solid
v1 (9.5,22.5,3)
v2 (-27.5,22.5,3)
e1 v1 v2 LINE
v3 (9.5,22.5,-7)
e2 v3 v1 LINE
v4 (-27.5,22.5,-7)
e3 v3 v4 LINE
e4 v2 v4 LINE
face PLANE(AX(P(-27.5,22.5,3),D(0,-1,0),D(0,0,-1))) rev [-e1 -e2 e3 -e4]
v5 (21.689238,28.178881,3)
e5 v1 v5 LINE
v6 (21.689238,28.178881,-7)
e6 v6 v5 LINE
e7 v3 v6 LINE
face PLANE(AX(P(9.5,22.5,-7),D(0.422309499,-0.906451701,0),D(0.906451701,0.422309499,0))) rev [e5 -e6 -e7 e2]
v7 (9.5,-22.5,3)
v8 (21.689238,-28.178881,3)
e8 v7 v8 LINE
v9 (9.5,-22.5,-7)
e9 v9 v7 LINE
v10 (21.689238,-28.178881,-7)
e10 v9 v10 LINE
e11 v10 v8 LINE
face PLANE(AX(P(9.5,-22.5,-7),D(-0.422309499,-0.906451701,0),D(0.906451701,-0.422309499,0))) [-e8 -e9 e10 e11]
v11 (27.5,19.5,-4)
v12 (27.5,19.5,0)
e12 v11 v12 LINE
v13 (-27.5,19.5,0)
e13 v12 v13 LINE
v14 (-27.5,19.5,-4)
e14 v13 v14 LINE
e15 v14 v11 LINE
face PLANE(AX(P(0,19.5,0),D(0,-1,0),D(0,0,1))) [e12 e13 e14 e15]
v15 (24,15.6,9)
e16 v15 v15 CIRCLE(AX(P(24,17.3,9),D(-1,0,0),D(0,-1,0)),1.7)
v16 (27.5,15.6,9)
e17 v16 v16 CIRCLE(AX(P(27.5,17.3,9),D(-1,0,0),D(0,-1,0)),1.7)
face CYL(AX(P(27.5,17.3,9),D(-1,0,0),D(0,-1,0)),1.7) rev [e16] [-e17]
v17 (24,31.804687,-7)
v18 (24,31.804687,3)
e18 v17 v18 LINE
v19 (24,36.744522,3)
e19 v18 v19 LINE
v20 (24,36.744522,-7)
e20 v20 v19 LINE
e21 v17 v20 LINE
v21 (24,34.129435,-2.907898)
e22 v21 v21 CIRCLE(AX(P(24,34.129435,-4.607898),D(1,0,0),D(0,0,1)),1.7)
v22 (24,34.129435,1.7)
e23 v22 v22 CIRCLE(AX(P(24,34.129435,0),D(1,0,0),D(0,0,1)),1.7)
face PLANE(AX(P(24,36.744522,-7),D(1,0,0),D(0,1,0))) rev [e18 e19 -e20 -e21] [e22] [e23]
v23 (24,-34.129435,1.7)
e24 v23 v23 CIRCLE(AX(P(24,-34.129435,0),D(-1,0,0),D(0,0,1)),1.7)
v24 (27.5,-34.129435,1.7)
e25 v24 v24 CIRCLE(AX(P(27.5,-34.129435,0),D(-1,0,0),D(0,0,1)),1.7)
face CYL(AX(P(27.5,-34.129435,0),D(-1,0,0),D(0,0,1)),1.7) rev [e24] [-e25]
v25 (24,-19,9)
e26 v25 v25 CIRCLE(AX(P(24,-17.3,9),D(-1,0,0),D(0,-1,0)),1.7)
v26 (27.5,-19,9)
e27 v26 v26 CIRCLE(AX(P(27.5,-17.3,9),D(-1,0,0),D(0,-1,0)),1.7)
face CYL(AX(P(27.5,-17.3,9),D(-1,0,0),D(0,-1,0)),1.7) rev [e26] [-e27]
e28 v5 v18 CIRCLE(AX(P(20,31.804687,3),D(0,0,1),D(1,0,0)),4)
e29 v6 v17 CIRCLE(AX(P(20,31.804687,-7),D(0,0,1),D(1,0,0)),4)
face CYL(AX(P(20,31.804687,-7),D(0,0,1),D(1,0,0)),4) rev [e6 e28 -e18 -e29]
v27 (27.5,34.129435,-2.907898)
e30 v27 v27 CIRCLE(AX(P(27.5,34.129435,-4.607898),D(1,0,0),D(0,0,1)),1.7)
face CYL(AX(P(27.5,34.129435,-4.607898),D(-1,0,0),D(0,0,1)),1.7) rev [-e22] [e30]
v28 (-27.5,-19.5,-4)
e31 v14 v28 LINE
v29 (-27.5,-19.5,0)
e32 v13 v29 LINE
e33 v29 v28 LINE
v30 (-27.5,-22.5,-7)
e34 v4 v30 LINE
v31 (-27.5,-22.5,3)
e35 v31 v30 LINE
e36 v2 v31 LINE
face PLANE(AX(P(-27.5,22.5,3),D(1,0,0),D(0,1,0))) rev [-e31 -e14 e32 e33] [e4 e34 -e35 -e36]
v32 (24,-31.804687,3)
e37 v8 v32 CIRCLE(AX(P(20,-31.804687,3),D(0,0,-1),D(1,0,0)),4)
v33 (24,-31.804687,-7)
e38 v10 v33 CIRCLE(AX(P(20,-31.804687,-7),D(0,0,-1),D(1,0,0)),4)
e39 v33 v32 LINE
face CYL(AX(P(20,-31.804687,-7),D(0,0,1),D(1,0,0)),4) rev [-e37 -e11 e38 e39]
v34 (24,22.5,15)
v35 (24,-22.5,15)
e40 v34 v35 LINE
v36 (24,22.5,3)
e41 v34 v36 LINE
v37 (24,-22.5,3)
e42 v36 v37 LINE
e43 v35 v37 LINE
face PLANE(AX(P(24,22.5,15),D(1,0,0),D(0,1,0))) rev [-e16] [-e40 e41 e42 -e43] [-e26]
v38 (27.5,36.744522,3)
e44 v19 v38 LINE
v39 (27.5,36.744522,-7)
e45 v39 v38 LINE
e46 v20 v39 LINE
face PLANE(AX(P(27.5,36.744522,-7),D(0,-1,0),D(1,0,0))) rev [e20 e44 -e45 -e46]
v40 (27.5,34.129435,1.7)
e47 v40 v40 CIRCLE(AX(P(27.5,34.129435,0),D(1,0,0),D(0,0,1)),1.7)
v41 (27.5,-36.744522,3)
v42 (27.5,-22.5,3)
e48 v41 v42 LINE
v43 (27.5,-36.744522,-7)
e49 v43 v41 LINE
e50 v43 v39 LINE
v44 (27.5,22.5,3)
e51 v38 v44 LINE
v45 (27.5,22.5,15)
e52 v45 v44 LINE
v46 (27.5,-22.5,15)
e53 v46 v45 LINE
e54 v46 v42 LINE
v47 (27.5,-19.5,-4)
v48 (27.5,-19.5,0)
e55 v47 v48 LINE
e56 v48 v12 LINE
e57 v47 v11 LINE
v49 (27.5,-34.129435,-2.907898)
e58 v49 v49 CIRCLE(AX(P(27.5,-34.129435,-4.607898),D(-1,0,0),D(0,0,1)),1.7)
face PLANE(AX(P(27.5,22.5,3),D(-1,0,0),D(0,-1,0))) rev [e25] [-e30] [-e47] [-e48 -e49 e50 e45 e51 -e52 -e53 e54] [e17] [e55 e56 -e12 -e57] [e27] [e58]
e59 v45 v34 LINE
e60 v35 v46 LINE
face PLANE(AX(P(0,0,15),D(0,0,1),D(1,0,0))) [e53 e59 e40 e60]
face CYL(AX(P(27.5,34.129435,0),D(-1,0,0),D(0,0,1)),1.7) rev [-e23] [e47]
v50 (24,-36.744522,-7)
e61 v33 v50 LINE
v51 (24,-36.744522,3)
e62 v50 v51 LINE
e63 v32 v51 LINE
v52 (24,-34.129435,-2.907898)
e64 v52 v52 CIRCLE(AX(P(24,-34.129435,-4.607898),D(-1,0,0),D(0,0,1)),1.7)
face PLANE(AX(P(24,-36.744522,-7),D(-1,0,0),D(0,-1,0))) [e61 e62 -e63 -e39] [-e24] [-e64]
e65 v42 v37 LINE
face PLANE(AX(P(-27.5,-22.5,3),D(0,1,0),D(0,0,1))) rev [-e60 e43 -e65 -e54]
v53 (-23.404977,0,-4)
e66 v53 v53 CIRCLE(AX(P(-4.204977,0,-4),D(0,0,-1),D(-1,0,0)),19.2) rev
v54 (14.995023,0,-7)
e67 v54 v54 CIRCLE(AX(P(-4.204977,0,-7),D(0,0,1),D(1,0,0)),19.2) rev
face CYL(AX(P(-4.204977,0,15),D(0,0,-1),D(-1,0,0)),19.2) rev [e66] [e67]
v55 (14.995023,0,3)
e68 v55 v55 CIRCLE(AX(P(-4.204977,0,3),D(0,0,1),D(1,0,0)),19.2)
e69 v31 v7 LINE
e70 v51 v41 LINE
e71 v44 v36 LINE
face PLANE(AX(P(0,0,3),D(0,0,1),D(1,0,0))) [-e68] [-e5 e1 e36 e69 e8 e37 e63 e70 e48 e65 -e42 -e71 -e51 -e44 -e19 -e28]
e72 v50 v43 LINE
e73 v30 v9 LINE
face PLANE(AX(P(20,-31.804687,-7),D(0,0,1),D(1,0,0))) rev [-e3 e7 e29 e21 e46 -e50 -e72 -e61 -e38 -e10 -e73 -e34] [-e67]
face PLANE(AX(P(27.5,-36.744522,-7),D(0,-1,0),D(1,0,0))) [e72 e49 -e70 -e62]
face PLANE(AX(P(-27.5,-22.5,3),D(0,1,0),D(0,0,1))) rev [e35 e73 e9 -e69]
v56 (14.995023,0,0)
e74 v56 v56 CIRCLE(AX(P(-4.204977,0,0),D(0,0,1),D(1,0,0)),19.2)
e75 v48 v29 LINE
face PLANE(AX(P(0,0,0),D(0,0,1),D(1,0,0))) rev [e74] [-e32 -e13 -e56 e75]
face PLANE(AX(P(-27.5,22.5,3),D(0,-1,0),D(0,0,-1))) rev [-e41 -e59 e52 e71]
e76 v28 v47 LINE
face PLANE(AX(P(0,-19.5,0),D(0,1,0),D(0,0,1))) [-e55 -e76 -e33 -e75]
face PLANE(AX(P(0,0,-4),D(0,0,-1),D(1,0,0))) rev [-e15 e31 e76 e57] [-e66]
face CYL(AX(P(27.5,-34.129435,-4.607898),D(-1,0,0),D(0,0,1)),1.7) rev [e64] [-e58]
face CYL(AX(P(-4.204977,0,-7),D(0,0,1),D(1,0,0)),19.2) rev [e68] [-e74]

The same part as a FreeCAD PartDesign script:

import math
import FreeCAD as App
import Part
import Sketcher
from FreeCAD import Vector
Q = App.Units.Quantity

doc = App.newDocument("Part")
params = doc.addObject("Spreadsheet::Sheet", "Params")
for row, (alias, value) in enumerate([
    ("sketch1_width", "55 mm"),
    ("sketch1_height", "45 mm"),
    ("pad1_length", "3 mm"),
    ("sketch2_height", "45 mm"),
    ("sketch2_width", "3.5 mm"),
    ("pad2_length", "12 mm"),
    ("sketch3_diameter", "3.4 mm"),
    ("sketch4_radius", "4 mm"),
    ("sketch4_width", "18 mm"),
    ("sketch4_width2", "3.5 mm"),
    ("pad3_length", "10 mm"),
    ("sketch5_diameter", "3.4 mm"),
    ("sketch6_diameter", "38.4 mm"),
    ("pocket3_length", "96.876971 mm"),
    ("sketch7_width", "55 mm"),
    ("sketch7_height", "4 mm"),
    ("pad4_length", "3 mm"),
], start=1):
    params.set(f"A{row}", alias)
    params.set(f"B{row}", "=" + value)
    params.setAlias(f"B{row}", alias)

body = doc.addObject("PartDesign::Body", "Body")

# Sketch on XY plane
sketch1 = body.newObject("Sketcher::SketchObject", "Sketch")
sketch1.AttachmentSupport = (doc.getObject("XY_Plane"), [""])
sketch1.MapMode = "FlatFace"
sketch1.addGeometry(Part.LineSegment(Vector(-28, 22, 0), Vector(-28, -22, 0)), False)
sketch1.addGeometry(Part.LineSegment(Vector(-28, -22, 0), Vector(28, -22, 0)), False)
sketch1.addGeometry(Part.LineSegment(Vector(28, -22, 0), Vector(28, 22, 0)), False)
sketch1.addGeometry(Part.LineSegment(Vector(28, 22, 0), Vector(-28, 22, 0)), False)
sketch1.addConstraint(Sketcher.Constraint("Coincident", 0, 2, 1, 1))
sketch1.addConstraint(Sketcher.Constraint("Coincident", 1, 2, 2, 1))
sketch1.addConstraint(Sketcher.Constraint("Coincident", 2, 2, 3, 1))
sketch1.addConstraint(Sketcher.Constraint("Coincident", 3, 2, 0, 1))
sketch1.addConstraint(Sketcher.Constraint("Vertical", 0))
sketch1.addConstraint(Sketcher.Constraint("Horizontal", 1))
sketch1.addConstraint(Sketcher.Constraint("Vertical", 2))
sketch1.addConstraint(Sketcher.Constraint("Horizontal", 3))
sketch1.addConstraint(Sketcher.Constraint("Symmetric", 0, 2, 2, 2, -1, 1))
sketch1.addConstraint(Sketcher.Constraint("DistanceX", 1, 1, 1, 2, Q("55 mm")))
sketch1.addConstraint(Sketcher.Constraint("DistanceY", 0, 2, 0, 1, Q("45 mm")))
sketch1.setExpression("Constraints[9]", "Params.sketch1_width")
sketch1.setExpression("Constraints[10]", "Params.sketch1_height")
pad1 = body.newObject("PartDesign::Pad", "Pad")
pad1.Profile = sketch1
pad1.setExpression("Length", "Params.pad1_length")

# Sketch on XY plane
sketch2 = body.newObject("Sketcher::SketchObject", "Sketch001")
sketch2.AttachmentSupport = (doc.getObject("XY_Plane"), [""])
sketch2.MapMode = "FlatFace"
sketch2.AttachmentOffset = App.Placement(Vector(0, 0, 3), App.Rotation())
sketch2.addGeometry(Part.LineSegment(Vector(24, 22.5, 0), Vector(24, -22.5, 0)), False)
sketch2.addGeometry(Part.LineSegment(Vector(24, -22.5, 0), Vector(27.5, -22.5, 0)), False)
sketch2.addGeometry(Part.LineSegment(Vector(27.5, -22.5, 0), Vector(27.5, 22.5, 0)), False)
sketch2.addGeometry(Part.LineSegment(Vector(27.5, 22.5, 0), Vector(24, 22.5, 0)), False)
sketch2.addConstraint(Sketcher.Constraint("Coincident", 0, 2, 1, 1))
sketch2.addConstraint(Sketcher.Constraint("Coincident", 1, 2, 2, 1))
sketch2.addConstraint(Sketcher.Constraint("Coincident", 2, 2, 3, 1))
sketch2.addConstraint(Sketcher.Constraint("Coincident", 3, 2, 0, 1))
sketch2.addConstraint(Sketcher.Constraint("Vertical", 0))
sketch2.addConstraint(Sketcher.Constraint("Horizontal", 1))
sketch2.addConstraint(Sketcher.Constraint("Vertical", 2))
sketch2.addConstraint(Sketcher.Constraint("Horizontal", 3))
sketch2.addConstraint(Sketcher.Constraint("DistanceY", 0, 2, 0, 1, Q("45 mm")))
sketch2.addConstraint(Sketcher.Constraint("DistanceX", 1, 1, 1, 2, Q("3.5 mm")))
sketch2.addConstraint(Sketcher.Constraint("DistanceX", -1, 1, 0, 2, Q("24 mm")))
sketch2.addConstraint(Sketcher.Constraint("DistanceY", 0, 2, -1, 1, Q("22.5 mm")))
sketch2.setExpression("Constraints[8]", "Params.sketch2_height")
sketch2.setExpression("Constraints[9]", "Params.sketch2_width")
pad2 = body.newObject("PartDesign::Pad", "Pad001")
pad2.Profile = sketch2
pad2.setExpression("Length", "Params.pad2_length")

# Sketch on YZ plane
sketch3 = body.newObject("Sketcher::SketchObject", "Sketch002")
sketch3.AttachmentSupport = (doc.getObject("YZ_Plane"), [""])
sketch3.MapMode = "FlatFace"
sketch3.AttachmentOffset = App.Placement(Vector(0, 0, 24), App.Rotation())
sketch3.addGeometry(Part.Circle(Vector(-17.3, 9, 0), Vector(0, 0, 1), 1.7), False)
sketch3.addGeometry(Part.Circle(Vector(17.3, 9, 0), Vector(0, 0, 1), 1.7), False)
sketch3.addConstraint(Sketcher.Constraint("Equal", 0, 1))
sketch3.addConstraint(Sketcher.Constraint("Symmetric", 0, 3, 1, 3, -2))
sketch3.addConstraint(Sketcher.Constraint("Diameter", 0, Q("3.4 mm")))
sketch3.addConstraint(Sketcher.Constraint("DistanceY", -1, 1, 0, 3, Q("9 mm")))
sketch3.addConstraint(Sketcher.Constraint("DistanceX", 0, 3, -1, 1, Q("17.3 mm")))
sketch3.setExpression("Constraints[2]", "Params.sketch3_diameter")
pocket1 = body.newObject("PartDesign::Pocket", "Pocket")
pocket1.Profile = sketch3
pocket1.Type = "ThroughAll"
pocket1.Reversed = True

# Sketch on XY plane
sketch4 = body.newObject("Sketcher::SketchObject", "Sketch003")
sketch4.AttachmentSupport = (doc.getObject("XY_Plane"), [""])
sketch4.MapMode = "FlatFace"
sketch4.AttachmentOffset = App.Placement(Vector(0, 0, -7), App.Rotation())
sketch4.addGeometry(Part.LineSegment(Vector(27.5, -22.5, 0), Vector(9.5, -22.5, 0)), False)
sketch4.addGeometry(Part.LineSegment(Vector(9.5, -22.5, 0), Vector(21.7, -28.2, 0)), False)
sketch4.addGeometry(Part.ArcOfCircle(Part.Circle(Vector(20, -31.8, 0), Vector(0, 0, 1), 4), math.radians(0), math.radians(65)), False)
sketch4.addGeometry(Part.LineSegment(Vector(24, -31.8, 0), Vector(24, -36.7, 0)), False)
sketch4.addGeometry(Part.LineSegment(Vector(24, -36.7, 0), Vector(27.5, -36.7, 0)), False)
sketch4.addGeometry(Part.LineSegment(Vector(27.5, -36.7, 0), Vector(27.5, -22.5, 0)), False)
sketch4.addConstraint(Sketcher.Constraint("Coincident", 0, 2, 1, 1))
sketch4.addConstraint(Sketcher.Constraint("Tangent", 1, 2, 2, 2))
sketch4.addConstraint(Sketcher.Constraint("Tangent", 2, 1, 3, 1))
sketch4.addConstraint(Sketcher.Constraint("Coincident", 3, 2, 4, 1))
sketch4.addConstraint(Sketcher.Constraint("Coincident", 4, 2, 5, 1))
sketch4.addConstraint(Sketcher.Constraint("Coincident", 5, 2, 0, 1))
sketch4.addConstraint(Sketcher.Constraint("Horizontal", 0))
sketch4.addConstraint(Sketcher.Constraint("Vertical", 3))
sketch4.addConstraint(Sketcher.Constraint("Horizontal", 4))
sketch4.addConstraint(Sketcher.Constraint("Vertical", 5))
sketch4.addConstraint(Sketcher.Constraint("Radius", 2, Q("4 mm")))
sketch4.addConstraint(Sketcher.Constraint("DistanceX", 0, 2, 0, 1, Q("18 mm")))
sketch4.addConstraint(Sketcher.Constraint("DistanceX", 4, 1, 4, 2, Q("3.5 mm")))
sketch4.addConstraint(Sketcher.Constraint("DistanceX", -1, 1, 2, 3, Q("20 mm")))
sketch4.addConstraint(Sketcher.Constraint("DistanceY", 0, 2, -1, 1, Q("22.5 mm")))
sketch4.addConstraint(Sketcher.Constraint("Distance", 1, Q("13.447201 mm")))
sketch4.addConstraint(Sketcher.Constraint("DistanceY", 3, 2, 3, 1, Q("4.939835 mm")))
sketch4.setExpression("Constraints[10]", "Params.sketch4_radius")
sketch4.setExpression("Constraints[11]", "Params.sketch4_width")
sketch4.setExpression("Constraints[12]", "Params.sketch4_width2")
pad3 = body.newObject("PartDesign::Pad", "Pad002")
pad3.Profile = sketch4
pad3.setExpression("Length", "Params.pad3_length")

# Sketch on YZ plane
sketch5 = body.newObject("Sketcher::SketchObject", "Sketch004")
sketch5.AttachmentSupport = (doc.getObject("YZ_Plane"), [""])
sketch5.MapMode = "FlatFace"
sketch5.AttachmentOffset = App.Placement(Vector(0, 0, 24), App.Rotation())
sketch5.addGeometry(Part.Circle(Vector(-34.1, 0, 0), Vector(0, 0, 1), 1.7), False)
sketch5.addGeometry(Part.Circle(Vector(-34.1, -4.6, 0), Vector(0, 0, 1), 1.7), False)
sketch5.addConstraint(Sketcher.Constraint("Equal", 0, 1))
sketch5.addConstraint(Sketcher.Constraint("PointOnObject", 0, 3, -1))
sketch5.addConstraint(Sketcher.Constraint("Vertical", 0, 3, 1, 3))
sketch5.addConstraint(Sketcher.Constraint("Diameter", 0, Q("3.4 mm")))
sketch5.addConstraint(Sketcher.Constraint("DistanceY", 1, 3, -1, 1, Q("4.607898 mm")))
sketch5.addConstraint(Sketcher.Constraint("DistanceX", 0, 3, -1, 1, Q("34.129435 mm")))
sketch5.setExpression("Constraints[3]", "Params.sketch5_diameter")
pocket2 = body.newObject("PartDesign::Pocket", "Pocket001")
pocket2.Profile = sketch5
pocket2.Type = "ThroughAll"
pocket2.Reversed = True
doc.recompute()

mirrored = body.newObject("PartDesign::Mirrored", "Mirrored")
mirrored.Originals = [pad3, pocket2]
mirrored.MirrorPlane = (doc.getObject("XZ_Plane"), [""])
body.Tip = mirrored

# Sketch on XY plane
sketch6 = body.newObject("Sketcher::SketchObject", "Sketch005")
sketch6.AttachmentSupport = (doc.getObject("XY_Plane"), [""])
sketch6.MapMode = "FlatFace"
sketch6.AttachmentOffset = App.Placement(Vector(0, 0, 3), App.Rotation())
sketch6.addGeometry(Part.Circle(Vector(-4, 0, 0), Vector(0, 0, 1), 19), False)
sketch6.addConstraint(Sketcher.Constraint("PointOnObject", 0, 3, -1))
sketch6.addConstraint(Sketcher.Constraint("Diameter", 0, Q("38.4 mm")))
sketch6.addConstraint(Sketcher.Constraint("DistanceX", 0, 3, -1, 1, Q("4.204977 mm")))
sketch6.setExpression("Constraints[1]", "Params.sketch6_diameter")
pocket3 = body.newObject("PartDesign::Pocket", "Pocket002")
pocket3.Profile = sketch6
pocket3.setExpression("Length", "Params.pocket3_length")
pocket3.Midplane = True
doc.recompute()

datumplane = body.newObject("PartDesign::Plane", "DatumPlane")
datumplane.AttachmentSupport = (doc.getObject("XY_Plane"), [""])
datumplane.MapMode = "FlatFace"
datumplane.AttachmentOffset = App.Placement(Vector(0, 0, -2), App.Rotation())
mirrored2 = body.newObject("PartDesign::Mirrored", "Mirrored001")
mirrored2.Originals = [pad1, pocket3]
mirrored2.MirrorPlane = (datumplane, [""])
body.Tip = mirrored2

# Sketch on XZ plane
sketch7 = body.newObject("Sketcher::SketchObject", "Sketch006")
sketch7.AttachmentSupport = (doc.getObject("XZ_Plane"), [""])
sketch7.MapMode = "FlatFace"
sketch7.AttachmentOffset = App.Placement(Vector(0, 0, 22.5), App.Rotation())
sketch7.addGeometry(Part.LineSegment(Vector(27.5, -4, 0), Vector(27.5, 0, 0)), False)
sketch7.addGeometry(Part.LineSegment(Vector(27.5, 0, 0), Vector(-27.5, 0, 0)), False)
sketch7.addGeometry(Part.LineSegment(Vector(-27.5, 0, 0), Vector(-27.5, -4, 0)), False)
sketch7.addGeometry(Part.LineSegment(Vector(-27.5, -4, 0), Vector(27.5, -4, 0)), False)
sketch7.addConstraint(Sketcher.Constraint("Coincident", 0, 2, 1, 1))
sketch7.addConstraint(Sketcher.Constraint("Coincident", 1, 2, 2, 1))
sketch7.addConstraint(Sketcher.Constraint("Coincident", 2, 2, 3, 1))
sketch7.addConstraint(Sketcher.Constraint("Coincident", 3, 2, 0, 1))
sketch7.addConstraint(Sketcher.Constraint("Vertical", 0))
sketch7.addConstraint(Sketcher.Constraint("Horizontal", 1))
sketch7.addConstraint(Sketcher.Constraint("Vertical", 2))
sketch7.addConstraint(Sketcher.Constraint("Horizontal", 3))
sketch7.addConstraint(Sketcher.Constraint("Symmetric", 0, 2, 1, 2, -1, 1))
sketch7.addConstraint(Sketcher.Constraint("DistanceX", 1, 2, 1, 1, Q("55 mm")))
sketch7.addConstraint(Sketcher.Constraint("DistanceY", 0, 1, 0, 2, Q("4 mm")))
sketch7.setExpression("Constraints[9]", "Params.sketch7_width")
sketch7.setExpression("Constraints[10]", "Params.sketch7_height")
pad4 = body.newObject("PartDesign::Pad", "Pad003")
pad4.Profile = sketch7
pad4.setExpression("Length", "Params.pad4_length")
pad4.Reversed = True
doc.recompute()

mirrored3 = body.newObject("PartDesign::Mirrored", "Mirrored002")
mirrored3.Originals = [pad4]
mirrored3.MirrorPlane = (doc.getObject("XZ_Plane"), [""])
body.Tip = mirrored3

doc.recompute()
